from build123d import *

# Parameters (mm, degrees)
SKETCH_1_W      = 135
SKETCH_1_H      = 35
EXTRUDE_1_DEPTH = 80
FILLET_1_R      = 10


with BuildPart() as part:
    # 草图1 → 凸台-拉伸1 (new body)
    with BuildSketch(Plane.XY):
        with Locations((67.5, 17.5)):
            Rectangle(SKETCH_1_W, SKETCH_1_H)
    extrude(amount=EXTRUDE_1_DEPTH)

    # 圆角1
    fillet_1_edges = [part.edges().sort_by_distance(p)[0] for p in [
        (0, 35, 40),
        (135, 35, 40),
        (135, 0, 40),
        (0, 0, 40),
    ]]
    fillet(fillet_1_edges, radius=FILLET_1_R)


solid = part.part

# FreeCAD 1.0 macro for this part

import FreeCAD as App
import Part
import Sketcher
Q = App.Units.Quantity


def edges_at(feature, points):
    """Names of the edges that pass closest to the given points."""
    edges = feature.Shape.Edges
    near = lambda p: min(range(len(edges)), key=lambda i: edges[i].distToShape(Part.Vertex(*p))[0])
    return sorted({f"Edge{near(p) + 1}" for p in points})

doc = App.newDocument("Part")
body = doc.addObject("PartDesign::Body", "Body")

sketch1 = body.newObject("Sketcher::SketchObject", "Sketch")
sketch1.AttachmentSupport = (doc.getObject("XY_Plane"), [""])
sketch1.MapMode = "FlatFace"
sketch1.addGeometry([
    Part.LineSegment(App.Vector(0, 35, 0), App.Vector(0, 0, 0)),
    Part.LineSegment(App.Vector(0, 0, 0), App.Vector(135, 0, 0)),
    Part.LineSegment(App.Vector(135, 0, 0), App.Vector(135, 35, 0)),
    Part.LineSegment(App.Vector(135, 35, 0), App.Vector(0, 35, 0)),
], False)
sketch1.addConstraint([
    Sketcher.Constraint("Coincident", 0, 2, 1, 1),
    Sketcher.Constraint("Coincident", 1, 2, 2, 1),
    Sketcher.Constraint("Coincident", 2, 2, 3, 1),
    Sketcher.Constraint("Coincident", 3, 2, 0, 1),
    Sketcher.Constraint("Vertical", 0),
    Sketcher.Constraint("Horizontal", 1),
    Sketcher.Constraint("Vertical", 2),
    Sketcher.Constraint("Horizontal", 3),
    Sketcher.Constraint("Coincident", 0, 2, -1, 1),
    Sketcher.Constraint("DistanceX", 1, 1, 1, 2, Q("135 mm")),
    Sketcher.Constraint("DistanceY", 0, 2, 0, 1, Q("35 mm")),
])
pad1 = body.newObject("PartDesign::Pad", "Pad")
pad1.Profile = sketch1
pad1.Length = 80
doc.recompute()

fillet = body.newObject("PartDesign::Fillet", "Fillet")
fillet.Base = (pad1, edges_at(pad1, [
    (0, 35, 40),
    (135, 35, 40),
    (135, 0, 40),
    (0, 0, 40),
]))
fillet.Radius = 10

doc.recompute()
